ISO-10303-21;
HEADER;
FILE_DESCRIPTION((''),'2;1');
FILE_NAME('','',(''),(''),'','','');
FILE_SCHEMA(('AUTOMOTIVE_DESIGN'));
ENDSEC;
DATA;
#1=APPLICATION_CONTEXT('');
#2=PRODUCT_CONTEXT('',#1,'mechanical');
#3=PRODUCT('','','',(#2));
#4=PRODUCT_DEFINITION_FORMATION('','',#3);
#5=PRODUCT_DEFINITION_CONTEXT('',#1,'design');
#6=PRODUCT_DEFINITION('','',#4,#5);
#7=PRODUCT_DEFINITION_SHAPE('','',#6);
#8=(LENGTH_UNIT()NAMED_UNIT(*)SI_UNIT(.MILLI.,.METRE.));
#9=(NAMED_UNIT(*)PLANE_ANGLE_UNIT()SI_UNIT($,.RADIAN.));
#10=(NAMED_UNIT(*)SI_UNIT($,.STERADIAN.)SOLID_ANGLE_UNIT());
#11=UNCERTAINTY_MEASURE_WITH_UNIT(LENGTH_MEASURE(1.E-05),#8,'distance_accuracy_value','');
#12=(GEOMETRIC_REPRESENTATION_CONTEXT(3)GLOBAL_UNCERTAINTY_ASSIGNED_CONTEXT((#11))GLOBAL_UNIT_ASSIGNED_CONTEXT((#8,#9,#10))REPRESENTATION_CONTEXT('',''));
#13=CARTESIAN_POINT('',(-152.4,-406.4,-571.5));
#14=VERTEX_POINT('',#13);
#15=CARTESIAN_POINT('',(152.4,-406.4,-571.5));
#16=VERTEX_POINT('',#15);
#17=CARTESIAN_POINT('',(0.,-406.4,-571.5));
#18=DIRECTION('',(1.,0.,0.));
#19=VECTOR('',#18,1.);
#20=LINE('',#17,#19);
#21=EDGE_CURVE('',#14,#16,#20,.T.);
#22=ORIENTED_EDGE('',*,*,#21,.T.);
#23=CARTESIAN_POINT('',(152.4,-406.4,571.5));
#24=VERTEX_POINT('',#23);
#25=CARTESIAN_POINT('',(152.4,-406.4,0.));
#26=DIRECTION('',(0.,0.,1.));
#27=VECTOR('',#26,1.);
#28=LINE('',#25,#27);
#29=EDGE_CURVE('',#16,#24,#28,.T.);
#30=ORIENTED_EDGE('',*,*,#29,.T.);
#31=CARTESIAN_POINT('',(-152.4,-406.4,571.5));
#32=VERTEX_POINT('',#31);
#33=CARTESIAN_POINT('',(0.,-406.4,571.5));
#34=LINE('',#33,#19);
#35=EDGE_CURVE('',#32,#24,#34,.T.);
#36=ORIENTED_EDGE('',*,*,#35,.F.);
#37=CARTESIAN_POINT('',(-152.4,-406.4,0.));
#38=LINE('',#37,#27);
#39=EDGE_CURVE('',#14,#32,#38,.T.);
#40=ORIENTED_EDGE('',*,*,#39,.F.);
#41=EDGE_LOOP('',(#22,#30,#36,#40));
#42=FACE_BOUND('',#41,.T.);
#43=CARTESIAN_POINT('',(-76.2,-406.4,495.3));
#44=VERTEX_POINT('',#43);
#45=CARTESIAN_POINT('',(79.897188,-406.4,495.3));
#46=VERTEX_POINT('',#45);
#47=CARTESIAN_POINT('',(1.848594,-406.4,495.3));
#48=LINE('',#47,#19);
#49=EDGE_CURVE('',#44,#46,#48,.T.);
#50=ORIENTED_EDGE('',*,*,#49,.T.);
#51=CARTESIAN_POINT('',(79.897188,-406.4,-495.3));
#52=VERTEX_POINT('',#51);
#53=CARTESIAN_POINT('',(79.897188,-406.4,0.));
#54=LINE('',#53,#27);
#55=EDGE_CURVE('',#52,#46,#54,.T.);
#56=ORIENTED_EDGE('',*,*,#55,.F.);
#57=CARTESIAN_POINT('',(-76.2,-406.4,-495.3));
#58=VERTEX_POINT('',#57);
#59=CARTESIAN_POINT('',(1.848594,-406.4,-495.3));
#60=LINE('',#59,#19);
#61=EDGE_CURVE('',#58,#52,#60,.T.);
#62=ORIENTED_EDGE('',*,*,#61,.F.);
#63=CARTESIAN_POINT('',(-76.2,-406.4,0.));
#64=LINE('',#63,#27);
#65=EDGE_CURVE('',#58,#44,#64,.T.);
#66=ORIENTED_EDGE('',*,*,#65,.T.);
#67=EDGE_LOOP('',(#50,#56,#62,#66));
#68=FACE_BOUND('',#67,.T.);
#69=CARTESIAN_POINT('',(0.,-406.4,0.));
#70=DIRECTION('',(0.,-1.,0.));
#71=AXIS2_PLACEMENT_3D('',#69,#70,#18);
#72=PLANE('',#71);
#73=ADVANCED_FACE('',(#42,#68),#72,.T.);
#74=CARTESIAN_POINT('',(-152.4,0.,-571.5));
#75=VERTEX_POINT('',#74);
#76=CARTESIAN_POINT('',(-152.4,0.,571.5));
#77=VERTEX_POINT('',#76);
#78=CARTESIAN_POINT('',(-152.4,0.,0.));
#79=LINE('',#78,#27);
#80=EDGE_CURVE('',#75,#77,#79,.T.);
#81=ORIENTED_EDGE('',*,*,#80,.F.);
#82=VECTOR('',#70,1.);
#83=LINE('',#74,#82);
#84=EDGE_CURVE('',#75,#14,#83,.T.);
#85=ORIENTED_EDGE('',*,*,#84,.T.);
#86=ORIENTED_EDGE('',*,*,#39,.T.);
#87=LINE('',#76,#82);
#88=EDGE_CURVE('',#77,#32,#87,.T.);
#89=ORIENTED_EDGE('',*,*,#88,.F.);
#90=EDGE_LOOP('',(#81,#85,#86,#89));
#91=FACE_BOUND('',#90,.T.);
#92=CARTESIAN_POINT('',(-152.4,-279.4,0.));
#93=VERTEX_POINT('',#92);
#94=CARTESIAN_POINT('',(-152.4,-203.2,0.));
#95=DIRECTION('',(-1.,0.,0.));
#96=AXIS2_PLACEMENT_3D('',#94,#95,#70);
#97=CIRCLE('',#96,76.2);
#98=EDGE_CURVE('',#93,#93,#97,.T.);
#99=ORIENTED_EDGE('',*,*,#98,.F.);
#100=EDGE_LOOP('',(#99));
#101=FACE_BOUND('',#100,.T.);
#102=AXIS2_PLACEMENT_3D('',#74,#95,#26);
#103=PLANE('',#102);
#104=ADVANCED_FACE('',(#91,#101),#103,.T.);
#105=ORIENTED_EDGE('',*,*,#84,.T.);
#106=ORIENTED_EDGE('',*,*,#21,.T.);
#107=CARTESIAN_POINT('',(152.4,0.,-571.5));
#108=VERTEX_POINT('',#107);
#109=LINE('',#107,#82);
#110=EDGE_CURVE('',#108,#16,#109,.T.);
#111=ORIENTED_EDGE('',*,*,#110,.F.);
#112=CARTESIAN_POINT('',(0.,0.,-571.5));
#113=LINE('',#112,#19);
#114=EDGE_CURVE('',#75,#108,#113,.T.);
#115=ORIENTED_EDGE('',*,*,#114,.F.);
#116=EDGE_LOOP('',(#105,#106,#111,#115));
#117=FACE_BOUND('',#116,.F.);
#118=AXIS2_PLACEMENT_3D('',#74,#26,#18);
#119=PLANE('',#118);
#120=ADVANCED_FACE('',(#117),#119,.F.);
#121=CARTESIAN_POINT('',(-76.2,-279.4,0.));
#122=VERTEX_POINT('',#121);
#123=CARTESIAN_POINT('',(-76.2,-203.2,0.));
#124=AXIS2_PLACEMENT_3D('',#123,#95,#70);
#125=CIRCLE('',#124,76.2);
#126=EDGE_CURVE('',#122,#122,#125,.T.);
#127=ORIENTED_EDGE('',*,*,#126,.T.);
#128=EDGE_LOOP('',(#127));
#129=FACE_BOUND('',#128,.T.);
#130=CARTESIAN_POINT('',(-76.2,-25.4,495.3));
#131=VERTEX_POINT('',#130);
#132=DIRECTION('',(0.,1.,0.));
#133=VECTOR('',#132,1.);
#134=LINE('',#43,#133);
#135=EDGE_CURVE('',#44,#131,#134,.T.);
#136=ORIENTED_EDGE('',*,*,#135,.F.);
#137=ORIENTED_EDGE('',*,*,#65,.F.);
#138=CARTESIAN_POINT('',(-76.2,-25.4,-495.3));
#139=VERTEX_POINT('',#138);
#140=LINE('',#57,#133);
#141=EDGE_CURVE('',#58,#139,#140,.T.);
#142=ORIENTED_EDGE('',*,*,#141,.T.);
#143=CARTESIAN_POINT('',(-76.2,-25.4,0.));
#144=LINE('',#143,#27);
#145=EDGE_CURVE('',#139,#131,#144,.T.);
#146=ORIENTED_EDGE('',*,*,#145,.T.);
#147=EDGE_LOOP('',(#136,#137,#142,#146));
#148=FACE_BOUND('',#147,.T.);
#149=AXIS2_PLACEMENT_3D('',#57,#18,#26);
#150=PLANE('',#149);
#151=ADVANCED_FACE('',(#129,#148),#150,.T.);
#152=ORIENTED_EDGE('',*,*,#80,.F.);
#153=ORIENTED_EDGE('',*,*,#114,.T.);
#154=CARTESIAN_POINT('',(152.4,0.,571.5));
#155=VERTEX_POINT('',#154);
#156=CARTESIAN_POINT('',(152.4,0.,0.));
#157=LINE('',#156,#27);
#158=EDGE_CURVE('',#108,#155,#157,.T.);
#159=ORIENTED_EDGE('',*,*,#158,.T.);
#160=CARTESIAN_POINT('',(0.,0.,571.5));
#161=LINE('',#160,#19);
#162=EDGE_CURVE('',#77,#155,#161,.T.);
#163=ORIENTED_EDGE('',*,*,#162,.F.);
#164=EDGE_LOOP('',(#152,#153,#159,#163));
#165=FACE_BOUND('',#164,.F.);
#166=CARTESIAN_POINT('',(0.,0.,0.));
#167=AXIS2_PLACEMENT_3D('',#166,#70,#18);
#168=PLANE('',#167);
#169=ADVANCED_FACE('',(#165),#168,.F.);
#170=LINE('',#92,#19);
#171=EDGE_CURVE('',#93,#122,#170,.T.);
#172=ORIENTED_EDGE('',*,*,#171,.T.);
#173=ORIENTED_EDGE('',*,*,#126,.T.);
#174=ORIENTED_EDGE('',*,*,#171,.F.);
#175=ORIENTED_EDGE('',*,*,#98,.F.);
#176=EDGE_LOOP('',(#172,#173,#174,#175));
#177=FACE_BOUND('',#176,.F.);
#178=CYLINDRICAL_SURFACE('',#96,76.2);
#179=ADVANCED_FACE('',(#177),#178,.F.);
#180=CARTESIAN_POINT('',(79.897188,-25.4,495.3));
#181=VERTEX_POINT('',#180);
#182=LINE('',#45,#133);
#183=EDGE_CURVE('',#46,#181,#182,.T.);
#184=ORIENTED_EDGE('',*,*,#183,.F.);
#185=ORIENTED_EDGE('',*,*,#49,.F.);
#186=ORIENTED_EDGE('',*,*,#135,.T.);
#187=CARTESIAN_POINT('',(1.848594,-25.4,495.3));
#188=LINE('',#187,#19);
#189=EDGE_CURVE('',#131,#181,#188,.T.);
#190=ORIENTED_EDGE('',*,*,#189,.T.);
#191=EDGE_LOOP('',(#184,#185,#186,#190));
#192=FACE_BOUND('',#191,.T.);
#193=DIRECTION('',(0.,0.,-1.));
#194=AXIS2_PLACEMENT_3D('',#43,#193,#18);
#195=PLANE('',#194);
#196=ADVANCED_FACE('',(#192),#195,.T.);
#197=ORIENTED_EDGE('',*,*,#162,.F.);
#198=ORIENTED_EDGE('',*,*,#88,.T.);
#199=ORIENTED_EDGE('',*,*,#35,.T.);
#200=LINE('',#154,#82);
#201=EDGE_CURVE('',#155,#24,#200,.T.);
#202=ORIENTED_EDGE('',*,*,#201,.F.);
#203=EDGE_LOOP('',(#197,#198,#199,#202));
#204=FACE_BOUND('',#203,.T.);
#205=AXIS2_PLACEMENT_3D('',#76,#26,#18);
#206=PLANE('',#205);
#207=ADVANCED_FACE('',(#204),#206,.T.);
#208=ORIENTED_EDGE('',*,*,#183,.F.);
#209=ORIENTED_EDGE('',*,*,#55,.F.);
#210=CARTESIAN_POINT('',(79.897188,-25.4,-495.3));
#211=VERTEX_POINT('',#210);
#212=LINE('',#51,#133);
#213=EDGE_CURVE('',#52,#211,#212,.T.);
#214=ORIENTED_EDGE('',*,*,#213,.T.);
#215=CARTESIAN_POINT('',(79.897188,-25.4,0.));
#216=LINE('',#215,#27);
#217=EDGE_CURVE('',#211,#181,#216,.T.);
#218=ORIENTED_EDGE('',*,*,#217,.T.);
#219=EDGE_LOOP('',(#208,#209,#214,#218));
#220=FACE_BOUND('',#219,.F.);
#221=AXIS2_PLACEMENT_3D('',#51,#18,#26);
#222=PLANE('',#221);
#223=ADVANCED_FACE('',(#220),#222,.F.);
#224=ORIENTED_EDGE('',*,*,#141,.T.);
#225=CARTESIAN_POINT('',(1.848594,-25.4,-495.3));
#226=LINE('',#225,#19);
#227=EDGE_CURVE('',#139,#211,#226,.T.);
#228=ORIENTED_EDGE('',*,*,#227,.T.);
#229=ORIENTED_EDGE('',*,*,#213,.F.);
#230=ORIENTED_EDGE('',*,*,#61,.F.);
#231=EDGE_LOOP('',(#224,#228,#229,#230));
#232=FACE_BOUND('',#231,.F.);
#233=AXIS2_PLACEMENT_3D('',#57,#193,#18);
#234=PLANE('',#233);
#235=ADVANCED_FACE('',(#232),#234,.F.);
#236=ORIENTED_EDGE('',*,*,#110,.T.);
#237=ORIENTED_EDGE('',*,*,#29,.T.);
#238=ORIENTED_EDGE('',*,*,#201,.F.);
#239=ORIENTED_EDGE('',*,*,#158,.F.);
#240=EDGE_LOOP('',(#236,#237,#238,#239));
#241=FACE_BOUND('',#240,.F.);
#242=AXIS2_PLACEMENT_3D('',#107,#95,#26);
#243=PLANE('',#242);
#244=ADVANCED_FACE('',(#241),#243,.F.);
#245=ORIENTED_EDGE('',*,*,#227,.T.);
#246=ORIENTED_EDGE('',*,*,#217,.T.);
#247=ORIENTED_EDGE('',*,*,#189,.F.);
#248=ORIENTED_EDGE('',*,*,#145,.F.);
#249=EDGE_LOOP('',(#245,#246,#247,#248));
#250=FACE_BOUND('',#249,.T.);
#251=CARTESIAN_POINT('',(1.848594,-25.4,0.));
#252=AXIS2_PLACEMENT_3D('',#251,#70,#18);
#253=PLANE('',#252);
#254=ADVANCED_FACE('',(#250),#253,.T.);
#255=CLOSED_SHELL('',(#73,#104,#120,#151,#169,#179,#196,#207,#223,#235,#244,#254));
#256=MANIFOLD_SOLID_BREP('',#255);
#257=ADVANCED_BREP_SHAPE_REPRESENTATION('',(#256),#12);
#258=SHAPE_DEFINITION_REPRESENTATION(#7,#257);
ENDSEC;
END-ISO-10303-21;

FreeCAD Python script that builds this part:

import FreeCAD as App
import Part
import Sketcher
from FreeCAD import Vector
Q = App.Units.Quantity

doc = App.newDocument("Part")
body = doc.addObject("PartDesign::Body", "Body")

sketch1 = doc.addObject("Sketcher::SketchObject", "Sketch")
body.addObject(sketch1)
sketch1.AttachmentSupport = (doc.XZ_Plane, [""])
sketch1.MapMode = "FlatFace"
sketch1.addGeometry([
    Part.LineSegment(Vector(-152, 572, 0), Vector(-152, -572, 0)),
    Part.LineSegment(Vector(-152, -572, 0), Vector(152, -572, 0)),
    Part.LineSegment(Vector(152, -572, 0), Vector(152, 572, 0)),
    Part.LineSegment(Vector(152, 572, 0), Vector(-152, 572, 0)),
], False)
sketch1.addConstraint([
    Sketcher.Constraint("Coincident", 0, 2, 1, 1),
    Sketcher.Constraint("Coincident", 1, 2, 2, 1),
    Sketcher.Constraint("Coincident", 2, 2, 3, 1),
    Sketcher.Constraint("Coincident", 3, 2, 0, 1),
    Sketcher.Constraint("Vertical", 0),
    Sketcher.Constraint("Horizontal", 1),
    Sketcher.Constraint("Vertical", 2),
    Sketcher.Constraint("Horizontal", 3),
    Sketcher.Constraint("Symmetric", 0, 2, 2, 2, -1, 1),
    Sketcher.Constraint("DistanceX", 1, 1, 1, 2, Q("12 in")),
    Sketcher.Constraint("DistanceY", 0, 2, 0, 1, Q("45 in")),
])
pad1 = doc.addObject("PartDesign::Pad", "Pad")
body.addObject(pad1)
pad1.Profile = sketch1
pad1.Length = Q("16 in")

sketch2 = doc.addObject("Sketcher::SketchObject", "Sketch001")
body.addObject(sketch2)
sketch2.AttachmentSupport = (doc.XZ_Plane, [""])
sketch2.MapMode = "FlatFace"
sketch2.AttachmentOffset = App.Placement(Vector(0, 0, 16 * 25.4), App.Rotation())
sketch2.addGeometry([
    Part.LineSegment(Vector(-76, 495, 0), Vector(-76, -495, 0)),
    Part.LineSegment(Vector(-76, -495, 0), Vector(80, -495, 0)),
    Part.LineSegment(Vector(80, -495, 0), Vector(80, 495, 0)),
    Part.LineSegment(Vector(80, 495, 0), Vector(-76, 495, 0)),
], False)
sketch2.addConstraint([
    Sketcher.Constraint("Coincident", 0, 2, 1, 1),
    Sketcher.Constraint("Coincident", 1, 2, 2, 1),
    Sketcher.Constraint("Coincident", 2, 2, 3, 1),
    Sketcher.Constraint("Coincident", 3, 2, 0, 1),
    Sketcher.Constraint("Vertical", 0),
    Sketcher.Constraint("Horizontal", 1),
    Sketcher.Constraint("Vertical", 2),
    Sketcher.Constraint("Horizontal", 3),
    Sketcher.Constraint("DistanceY", 0, 2, 0, 1, Q("39 in")),
    Sketcher.Constraint("DistanceX", 0, 2, -1, 1, Q("3 in")),
    Sketcher.Constraint("DistanceY", 0, 2, -1, 1, Q("19.5 in")),
    Sketcher.Constraint("DistanceX", 1, 1, 1, 2, 156.097188),
])
pocket1 = doc.addObject("PartDesign::Pocket", "Pocket")
body.addObject(pocket1)
pocket1.Profile = sketch2
pocket1.Length = Q("15 in")

sketch3 = doc.addObject("Sketcher::SketchObject", "Sketch002")
body.addObject(sketch3)
sketch3.AttachmentSupport = (doc.YZ_Plane, [""])
sketch3.MapMode = "FlatFace"
sketch3.AttachmentOffset = App.Placement(Vector(0, 0, -6 * 25.4), App.Rotation())
sketch3.addGeometry(Part.Circle(Vector(-203, 0, 0), Vector(0, 0, 1), 76), False)
sketch3.addConstraint([
    Sketcher.Constraint("PointOnObject", 0, 3, -1),
    Sketcher.Constraint("Diameter", 0, Q("6 in")),
    Sketcher.Constraint("DistanceX", 0, 3, -1, 1, Q("8 in")),
])
pocket2 = doc.addObject("PartDesign::Pocket", "Pocket001")
body.addObject(pocket2)
pocket2.Profile = sketch3
pocket2.Length = Q("3 in")
pocket2.Reversed = True

doc.recompute()
